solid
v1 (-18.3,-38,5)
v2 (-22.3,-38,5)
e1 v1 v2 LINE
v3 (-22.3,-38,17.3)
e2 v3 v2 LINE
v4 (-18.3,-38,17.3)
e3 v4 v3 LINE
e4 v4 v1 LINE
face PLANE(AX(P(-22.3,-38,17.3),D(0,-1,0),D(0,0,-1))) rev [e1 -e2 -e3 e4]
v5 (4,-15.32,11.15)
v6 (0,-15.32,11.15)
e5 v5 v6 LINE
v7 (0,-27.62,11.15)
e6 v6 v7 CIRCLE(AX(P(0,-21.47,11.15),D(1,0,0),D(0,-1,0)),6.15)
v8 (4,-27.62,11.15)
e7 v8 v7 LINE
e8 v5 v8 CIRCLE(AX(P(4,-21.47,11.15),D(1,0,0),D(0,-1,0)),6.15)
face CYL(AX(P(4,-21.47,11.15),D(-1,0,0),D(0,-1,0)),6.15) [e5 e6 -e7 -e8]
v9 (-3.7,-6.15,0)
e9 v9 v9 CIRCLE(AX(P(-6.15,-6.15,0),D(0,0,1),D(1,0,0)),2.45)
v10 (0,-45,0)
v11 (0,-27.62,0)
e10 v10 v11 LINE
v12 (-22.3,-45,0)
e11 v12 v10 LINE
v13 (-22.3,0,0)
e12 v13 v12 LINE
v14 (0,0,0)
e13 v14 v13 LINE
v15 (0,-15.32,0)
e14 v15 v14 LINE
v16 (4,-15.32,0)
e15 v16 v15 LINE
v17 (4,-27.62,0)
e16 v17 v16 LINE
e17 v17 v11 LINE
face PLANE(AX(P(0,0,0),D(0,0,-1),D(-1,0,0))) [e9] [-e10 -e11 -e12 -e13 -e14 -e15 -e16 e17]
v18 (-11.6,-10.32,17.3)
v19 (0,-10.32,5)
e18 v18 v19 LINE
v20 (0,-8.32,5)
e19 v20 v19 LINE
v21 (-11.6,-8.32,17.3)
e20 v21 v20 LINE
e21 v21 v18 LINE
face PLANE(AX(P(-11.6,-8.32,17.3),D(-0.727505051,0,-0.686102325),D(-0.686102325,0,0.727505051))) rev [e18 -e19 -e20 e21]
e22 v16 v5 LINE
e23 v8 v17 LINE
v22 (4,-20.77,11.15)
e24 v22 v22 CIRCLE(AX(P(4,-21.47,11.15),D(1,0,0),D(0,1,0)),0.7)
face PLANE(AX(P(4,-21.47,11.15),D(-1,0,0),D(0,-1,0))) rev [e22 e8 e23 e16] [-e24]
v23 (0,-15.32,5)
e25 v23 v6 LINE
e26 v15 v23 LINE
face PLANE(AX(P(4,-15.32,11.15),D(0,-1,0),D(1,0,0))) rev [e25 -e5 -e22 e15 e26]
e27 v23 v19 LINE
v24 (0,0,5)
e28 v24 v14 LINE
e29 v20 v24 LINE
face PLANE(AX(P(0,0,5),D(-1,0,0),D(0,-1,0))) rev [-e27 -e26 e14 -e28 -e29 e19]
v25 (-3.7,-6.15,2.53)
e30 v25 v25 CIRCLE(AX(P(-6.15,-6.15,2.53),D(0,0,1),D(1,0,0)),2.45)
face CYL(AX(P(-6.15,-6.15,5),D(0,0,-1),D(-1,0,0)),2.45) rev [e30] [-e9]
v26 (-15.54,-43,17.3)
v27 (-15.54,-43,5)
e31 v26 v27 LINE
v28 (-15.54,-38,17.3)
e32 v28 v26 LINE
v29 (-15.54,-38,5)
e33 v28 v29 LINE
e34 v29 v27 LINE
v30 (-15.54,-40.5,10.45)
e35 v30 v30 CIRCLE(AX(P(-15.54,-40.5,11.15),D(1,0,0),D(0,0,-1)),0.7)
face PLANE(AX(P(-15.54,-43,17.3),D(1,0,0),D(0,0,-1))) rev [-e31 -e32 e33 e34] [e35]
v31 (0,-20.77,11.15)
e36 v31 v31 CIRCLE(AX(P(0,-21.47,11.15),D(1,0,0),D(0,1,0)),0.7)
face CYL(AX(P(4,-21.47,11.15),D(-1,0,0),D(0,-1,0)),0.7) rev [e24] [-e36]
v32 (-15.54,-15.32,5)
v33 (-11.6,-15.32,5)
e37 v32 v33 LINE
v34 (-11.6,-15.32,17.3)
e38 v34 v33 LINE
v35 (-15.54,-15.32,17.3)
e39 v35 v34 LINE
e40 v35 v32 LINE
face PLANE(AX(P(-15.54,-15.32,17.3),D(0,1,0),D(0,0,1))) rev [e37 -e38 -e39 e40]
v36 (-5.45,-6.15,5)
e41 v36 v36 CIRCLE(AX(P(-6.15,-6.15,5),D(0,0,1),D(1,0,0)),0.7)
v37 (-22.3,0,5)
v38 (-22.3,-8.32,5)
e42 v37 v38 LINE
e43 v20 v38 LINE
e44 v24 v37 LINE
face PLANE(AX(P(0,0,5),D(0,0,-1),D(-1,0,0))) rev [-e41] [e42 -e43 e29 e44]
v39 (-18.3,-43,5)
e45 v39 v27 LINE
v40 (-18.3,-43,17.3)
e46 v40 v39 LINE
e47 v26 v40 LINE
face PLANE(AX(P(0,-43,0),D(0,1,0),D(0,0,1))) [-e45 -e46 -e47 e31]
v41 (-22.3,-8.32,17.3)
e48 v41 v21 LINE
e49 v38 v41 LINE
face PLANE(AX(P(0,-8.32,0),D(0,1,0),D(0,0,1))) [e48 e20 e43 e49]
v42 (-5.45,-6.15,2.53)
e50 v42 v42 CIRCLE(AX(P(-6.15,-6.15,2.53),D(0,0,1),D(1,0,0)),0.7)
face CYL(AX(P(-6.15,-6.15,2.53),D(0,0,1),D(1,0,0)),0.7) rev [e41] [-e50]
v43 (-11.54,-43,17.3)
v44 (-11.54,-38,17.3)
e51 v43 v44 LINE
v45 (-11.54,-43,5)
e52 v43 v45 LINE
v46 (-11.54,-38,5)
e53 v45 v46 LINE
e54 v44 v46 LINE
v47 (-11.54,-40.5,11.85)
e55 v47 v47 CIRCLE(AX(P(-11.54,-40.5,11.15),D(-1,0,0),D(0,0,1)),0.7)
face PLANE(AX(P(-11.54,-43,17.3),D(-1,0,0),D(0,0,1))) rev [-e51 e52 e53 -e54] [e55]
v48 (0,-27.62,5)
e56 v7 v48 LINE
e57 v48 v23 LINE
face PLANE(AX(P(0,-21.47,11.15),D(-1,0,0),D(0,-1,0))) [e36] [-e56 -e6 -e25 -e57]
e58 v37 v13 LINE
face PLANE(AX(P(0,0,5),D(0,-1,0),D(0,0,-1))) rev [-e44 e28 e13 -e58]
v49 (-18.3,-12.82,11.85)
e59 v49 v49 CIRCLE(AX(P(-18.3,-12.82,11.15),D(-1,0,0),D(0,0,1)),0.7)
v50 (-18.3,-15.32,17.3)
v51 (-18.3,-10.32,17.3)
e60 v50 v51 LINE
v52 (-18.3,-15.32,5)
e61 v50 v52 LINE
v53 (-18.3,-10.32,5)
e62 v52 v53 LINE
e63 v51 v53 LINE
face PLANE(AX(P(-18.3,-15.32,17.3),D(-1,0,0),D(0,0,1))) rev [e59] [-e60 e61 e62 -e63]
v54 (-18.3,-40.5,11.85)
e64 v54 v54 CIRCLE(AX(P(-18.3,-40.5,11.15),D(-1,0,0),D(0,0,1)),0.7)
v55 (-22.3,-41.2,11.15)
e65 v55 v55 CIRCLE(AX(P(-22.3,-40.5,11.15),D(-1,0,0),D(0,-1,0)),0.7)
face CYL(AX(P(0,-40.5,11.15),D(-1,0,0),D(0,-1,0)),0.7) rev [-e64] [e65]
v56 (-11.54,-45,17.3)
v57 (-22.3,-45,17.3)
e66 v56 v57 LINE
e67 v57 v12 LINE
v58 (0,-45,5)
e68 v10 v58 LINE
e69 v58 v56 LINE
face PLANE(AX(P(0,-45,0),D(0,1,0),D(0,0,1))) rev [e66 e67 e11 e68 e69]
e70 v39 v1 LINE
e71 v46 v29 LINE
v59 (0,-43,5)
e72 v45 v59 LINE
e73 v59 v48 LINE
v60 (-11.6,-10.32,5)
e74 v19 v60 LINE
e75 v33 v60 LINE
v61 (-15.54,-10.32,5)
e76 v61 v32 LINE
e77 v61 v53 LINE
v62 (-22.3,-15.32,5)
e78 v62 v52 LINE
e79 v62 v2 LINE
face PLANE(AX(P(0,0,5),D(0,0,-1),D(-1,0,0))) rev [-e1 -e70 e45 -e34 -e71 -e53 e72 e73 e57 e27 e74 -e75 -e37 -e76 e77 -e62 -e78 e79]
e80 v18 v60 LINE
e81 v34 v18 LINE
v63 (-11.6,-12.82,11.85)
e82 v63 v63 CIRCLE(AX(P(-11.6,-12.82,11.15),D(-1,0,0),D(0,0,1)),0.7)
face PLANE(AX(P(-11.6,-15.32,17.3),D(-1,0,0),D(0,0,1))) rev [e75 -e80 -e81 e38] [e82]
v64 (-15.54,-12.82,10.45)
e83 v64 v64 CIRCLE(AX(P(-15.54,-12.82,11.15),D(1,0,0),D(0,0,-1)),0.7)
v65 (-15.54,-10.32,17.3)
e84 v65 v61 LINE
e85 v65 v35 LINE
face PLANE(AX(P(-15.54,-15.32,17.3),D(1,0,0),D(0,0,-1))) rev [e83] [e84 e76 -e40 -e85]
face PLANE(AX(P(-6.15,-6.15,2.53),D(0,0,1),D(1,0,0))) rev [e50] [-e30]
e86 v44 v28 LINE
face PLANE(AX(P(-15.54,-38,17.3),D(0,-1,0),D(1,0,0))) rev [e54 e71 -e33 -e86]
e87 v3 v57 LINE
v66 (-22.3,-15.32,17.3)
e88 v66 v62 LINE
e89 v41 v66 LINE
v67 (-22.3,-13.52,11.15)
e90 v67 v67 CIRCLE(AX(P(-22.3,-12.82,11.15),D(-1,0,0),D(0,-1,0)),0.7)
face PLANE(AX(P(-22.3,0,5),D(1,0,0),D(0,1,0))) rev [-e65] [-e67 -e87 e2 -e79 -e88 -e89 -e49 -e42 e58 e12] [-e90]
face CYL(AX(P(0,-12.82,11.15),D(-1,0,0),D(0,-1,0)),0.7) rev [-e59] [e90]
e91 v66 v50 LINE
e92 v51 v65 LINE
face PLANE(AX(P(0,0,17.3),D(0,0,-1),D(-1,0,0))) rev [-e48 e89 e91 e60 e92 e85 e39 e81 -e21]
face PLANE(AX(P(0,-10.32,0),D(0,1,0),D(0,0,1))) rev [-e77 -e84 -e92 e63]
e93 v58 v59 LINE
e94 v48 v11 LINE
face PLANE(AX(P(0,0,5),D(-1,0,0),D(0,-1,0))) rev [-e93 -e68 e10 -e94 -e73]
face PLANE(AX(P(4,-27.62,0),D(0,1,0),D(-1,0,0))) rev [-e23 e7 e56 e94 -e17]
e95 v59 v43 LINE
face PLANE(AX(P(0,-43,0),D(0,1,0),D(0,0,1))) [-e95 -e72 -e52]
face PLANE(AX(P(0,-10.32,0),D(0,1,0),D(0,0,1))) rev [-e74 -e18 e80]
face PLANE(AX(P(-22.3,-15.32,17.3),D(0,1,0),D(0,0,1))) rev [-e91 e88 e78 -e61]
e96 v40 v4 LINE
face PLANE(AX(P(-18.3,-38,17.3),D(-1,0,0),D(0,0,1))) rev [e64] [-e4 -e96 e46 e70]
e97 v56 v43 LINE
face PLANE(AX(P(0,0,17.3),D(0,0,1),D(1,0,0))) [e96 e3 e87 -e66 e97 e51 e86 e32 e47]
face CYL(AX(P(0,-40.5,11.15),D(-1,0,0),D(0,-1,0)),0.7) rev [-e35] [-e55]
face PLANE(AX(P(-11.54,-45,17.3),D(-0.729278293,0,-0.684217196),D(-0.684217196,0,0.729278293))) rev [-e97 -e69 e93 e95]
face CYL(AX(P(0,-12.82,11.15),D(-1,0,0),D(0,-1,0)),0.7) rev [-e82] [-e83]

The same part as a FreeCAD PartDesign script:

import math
import FreeCAD as App
import Part
import Sketcher
Q = App.Units.Quantity


def add_polygon(sketch, points):
    """Adds a closed chain of lines whose ends are joined by coincident constraints."""
    first, n = sketch.GeometryCount, len(points)
    for a, b in zip(points, points[1:] + points[:1]):
        sketch.addGeometry(Part.LineSegment(App.Vector(*a, 0), App.Vector(*b, 0)), False)
    for i in range(n):
        sketch.addConstraint(Sketcher.Constraint("Coincident", first + i, 2, first + (i + 1) % n, 1))

doc = App.newDocument("Part")
params = doc.addObject("Spreadsheet::Sheet", "Params")
for row, (alias, value) in enumerate([
    ("sketch1_diameter", "4.9 mm"),
    ("sketch1_height", "43 mm"),
    ("sketch1_width", "22.3 mm"),
    ("pad1_length", "5 mm"),
    ("sketch2_diameter", "4.9 mm"),
    ("sketch2_diameter2", "1.4 mm"),
    ("pad2_length", "2.47 mm"),
    ("sketch3_width", "4 mm"),
    ("sketch3_height", "5 mm"),
    ("sketch3_width2", "3.94 mm"),
    ("pad3_length", "12.3 mm"),
    ("sketch4_diameter", "1.4 mm"),
    ("sketch5_height", "5 mm"),
    ("sketch5_width", "22.3 mm"),
    ("sketch5_height2", "17.3 mm"),
    ("sketch5_width2", "10.76 mm"),
    ("pad4_length", "2 mm"),
    ("sketch6_width", "10.7 mm"),
    ("sketch6_width2", "22.3 mm"),
    ("sketch6_height", "12.3 mm"),
    ("pad5_length", "2 mm"),
    ("sketch7_diameter", "1.4 mm"),
    ("sketch7_radius", "6.15 mm"),
    ("sketch7_height", "11.15 mm"),
    ("pad6_length", "4 mm"),
], start=1):
    params.set(f"A{row}", alias)
    params.set(f"B{row}", "=" + value)
    params.setAlias(f"B{row}", alias)

body = doc.addObject("PartDesign::Body", "Body")

sketch1 = body.newObject("Sketcher::SketchObject", "Sketch")
sketch1.AttachmentSupport = (doc.getObject("XY_Plane"), [""])
sketch1.MapMode = "FlatFace"
add_polygon(sketch1, [(-22.3, 0), (-22.3, -43), (0, -43), (0, 0)])
sketch1.addGeometry(Part.Circle(App.Vector(-6.15, -6.15, 0), App.Vector(0, 0, 1), 2.45), False)
sketch1.addConstraint([
    Sketcher.Constraint("Vertical", 0),
    Sketcher.Constraint("Horizontal", 1),
    Sketcher.Constraint("Vertical", 2),
    Sketcher.Constraint("Horizontal", 3),
    Sketcher.Constraint("Coincident", 2, 2, -1, 1),
    Sketcher.Constraint("Diameter", 4, Q("4.9 mm")),
    Sketcher.Constraint("DistanceY", 0, 2, 0, 1, Q("43 mm")),
    Sketcher.Constraint("DistanceX", 1, 1, 1, 2, Q("22.3 mm")),
    Sketcher.Constraint("DistanceX", 4, 3, -1, 1, Q("6.15 mm")),
    Sketcher.Constraint("DistanceY", 4, 3, -1, 1, Q("6.15 mm")),
])
sketch1.setExpression("Constraints[9]", "Params.sketch1_diameter")
sketch1.setExpression("Constraints[10]", "Params.sketch1_height")
sketch1.setExpression("Constraints[11]", "Params.sketch1_width")
pad1 = body.newObject("PartDesign::Pad", "Pad")
pad1.Profile = sketch1
pad1.setExpression("Length", "Params.pad1_length")

sketch2 = body.newObject("Sketcher::SketchObject", "Sketch001")
sketch2.AttachmentSupport = (doc.getObject("XY_Plane"), [""])
sketch2.MapMode = "FlatFace"
sketch2.AttachmentOffset = App.Placement(App.Vector(0, 0, 2.53), App.Rotation())
sketch2.addGeometry([
    Part.Circle(App.Vector(-6.15, -6.15, 0), App.Vector(0, 0, 1), 2.45),
    Part.Circle(App.Vector(-6.15, -6.15, 0), App.Vector(0, 0, 1), 0.7),
], False)
sketch2.addConstraint([
    Sketcher.Constraint("Coincident", 1, 3, 0, 3),
    Sketcher.Constraint("Diameter", 0, Q("4.9 mm")),
    Sketcher.Constraint("Diameter", 1, Q("1.4 mm")),
    Sketcher.Constraint("DistanceX", 0, 3, -1, 1, Q("6.15 mm")),
    Sketcher.Constraint("DistanceY", 0, 3, -1, 1, Q("6.15 mm")),
])
sketch2.setExpression("Constraints[1]", "Params.sketch2_diameter")
sketch2.setExpression("Constraints[2]", "Params.sketch2_diameter2")
pad2 = body.newObject("PartDesign::Pad", "Pad001")
pad2.Profile = sketch2
pad2.setExpression("Length", "Params.pad2_length")

sketch3 = body.newObject("Sketcher::SketchObject", "Sketch002")
sketch3.AttachmentSupport = (doc.getObject("XY_Plane"), [""])
sketch3.MapMode = "FlatFace"
sketch3.AttachmentOffset = App.Placement(App.Vector(0, 0, 5), App.Rotation())
add_polygon(sketch3, [(-22.3, -38), (-22.3, -43), (-18.3, -43), (-18.3, -38)])
add_polygon(sketch3, [(-15.54, -38), (-15.54, -43), (-11.54, -43), (-11.54, -38)])
add_polygon(sketch3, [(-22.3, -10.32), (-22.3, -15.32), (-18.3, -15.32), (-18.3, -10.32)])
add_polygon(sketch3, [(-15.54, -10.32), (-15.54, -15.32), (-11.6, -15.32), (-11.6, -10.32)])
sketch3.addConstraint([
    Sketcher.Constraint("Vertical", 0),
    Sketcher.Constraint("Horizontal", 1),
    Sketcher.Constraint("Vertical", 2),
    Sketcher.Constraint("Horizontal", 3),
    Sketcher.Constraint("Vertical", 4),
    Sketcher.Constraint("Horizontal", 5),
    Sketcher.Constraint("Vertical", 6),
    Sketcher.Constraint("Horizontal", 7),
    Sketcher.Constraint("Vertical", 8),
    Sketcher.Constraint("Horizontal", 9),
    Sketcher.Constraint("Vertical", 10),
    Sketcher.Constraint("Horizontal", 11),
    Sketcher.Constraint("Vertical", 12),
    Sketcher.Constraint("Horizontal", 13),
    Sketcher.Constraint("Vertical", 14),
    Sketcher.Constraint("Horizontal", 15),
    Sketcher.Constraint("Horizontal", 1, 2, 4, 2),
    Sketcher.Constraint("Horizontal", 3, 2, 6, 2),
    Sketcher.Constraint("Horizontal", 9, 2, 12, 2),
    Sketcher.Constraint("Horizontal", 11, 2, 14, 2),
    Sketcher.Constraint("Vertical", 3, 2, 8, 2),
    Sketcher.Constraint("Vertical", 2, 2, 9, 2),
    Sketcher.Constraint("Vertical", 7, 2, 12, 2),
    Sketcher.Constraint("Equal", 3, 5),
    Sketcher.Constraint("Equal", 6, 8),
    Sketcher.Constraint("DistanceX", 1, 1, 1, 2, Q("4 mm")),
    Sketcher.Constraint("DistanceY", 0, 2, 0, 1, Q("5 mm")),
    Sketcher.Constraint("DistanceY", 0, 2, -1, 1, Q("43 mm")),
    Sketcher.Constraint("DistanceX", 13, 1, 13, 2, Q("3.94 mm")),
    Sketcher.Constraint("DistanceX", 0, 2, -1, 1, Q("22.3 mm")),
    Sketcher.Constraint("DistanceX", 13, 2, -1, 1, Q("11.6 mm")),
    Sketcher.Constraint("DistanceY", 8, 2, -1, 1, Q("15.32 mm")),
])
sketch3.setExpression("Constraints[41]", "Params.sketch3_width")
sketch3.setExpression("Constraints[42]", "Params.sketch3_height")
sketch3.setExpression("Constraints[44]", "Params.sketch3_width2")
pad3 = body.newObject("PartDesign::Pad", "Pad002")
pad3.Profile = sketch3
pad3.setExpression("Length", "Params.pad3_length")

sketch4 = body.newObject("Sketcher::SketchObject", "Sketch003")
sketch4.AttachmentSupport = (doc.getObject("YZ_Plane"), [""])
sketch4.MapMode = "FlatFace"
sketch4.AttachmentOffset = App.Placement(App.Vector(0, 0, -22.3), App.Rotation())
sketch4.addGeometry([
    Part.Circle(App.Vector(-12.82, 11.15, 0), App.Vector(0, 0, 1), 0.7),
    Part.Circle(App.Vector(-40.5, 11.15, 0), App.Vector(0, 0, 1), 0.7),
], False)
sketch4.addConstraint([
    Sketcher.Constraint("Equal", 0, 1),
    Sketcher.Constraint("Horizontal", 0, 3, 1, 3),
    Sketcher.Constraint("Diameter", 0, Q("1.4 mm")),
    Sketcher.Constraint("DistanceX", 1, 3, -1, 1, Q("40.5 mm")),
    Sketcher.Constraint("DistanceX", 0, 3, -1, 1, Q("12.82 mm")),
    Sketcher.Constraint("DistanceY", -1, 1, 0, 3, Q("11.15 mm")),
])
sketch4.setExpression("Constraints[2]", "Params.sketch4_diameter")
pocket1 = body.newObject("PartDesign::Pocket", "Pocket")
pocket1.Profile = sketch4
pocket1.Type = "ThroughAll"
pocket1.Reversed = True

sketch5 = body.newObject("Sketcher::SketchObject", "Sketch004")
sketch5.AttachmentSupport = (doc.getObject("XZ_Plane"), [""])
sketch5.MapMode = "FlatFace"
sketch5.AttachmentOffset = App.Placement(App.Vector(0, 0, 43), App.Rotation())
add_polygon(sketch5, [(-11.54, 17.3), (-22.3, 17.3), (-22.3, 0), (0, 0), (0, 5)])
sketch5.addConstraint([
    Sketcher.Constraint("Horizontal", 0),
    Sketcher.Constraint("Vertical", 1),
    Sketcher.Constraint("Horizontal", 2),
    Sketcher.Constraint("Vertical", 3),
    Sketcher.Constraint("Coincident", 2, 2, -1, 1),
    Sketcher.Constraint("DistanceY", 3, 1, 3, 2, Q("5 mm")),
    Sketcher.Constraint("DistanceX", 2, 1, 2, 2, Q("22.3 mm")),
    Sketcher.Constraint("DistanceY", 1, 2, 1, 1, Q("17.3 mm")),
    Sketcher.Constraint("DistanceX", 0, 2, 0, 1, Q("10.76 mm")),
])
sketch5.setExpression("Constraints[10]", "Params.sketch5_height")
sketch5.setExpression("Constraints[11]", "Params.sketch5_width")
sketch5.setExpression("Constraints[12]", "Params.sketch5_height2")
sketch5.setExpression("Constraints[13]", "Params.sketch5_width2")
pad4 = body.newObject("PartDesign::Pad", "Pad003")
pad4.Profile = sketch5
pad4.setExpression("Length", "Params.pad4_length")

sketch6 = body.newObject("Sketcher::SketchObject", "Sketch005")
sketch6.AttachmentSupport = (doc.getObject("XZ_Plane"), [""])
sketch6.MapMode = "FlatFace"
sketch6.AttachmentOffset = App.Placement(App.Vector(0, 0, 10.32), App.Rotation())
add_polygon(sketch6, [(-22.3, 5), (-22.3, 17.3), (-11.6, 17.3), (0, 5)])
sketch6.addConstraint([
    Sketcher.Constraint("Vertical", 0),
    Sketcher.Constraint("Horizontal", 1),
    Sketcher.Constraint("Horizontal", 3),
    Sketcher.Constraint("PointOnObject", 2, 2, -2),
    Sketcher.Constraint("DistanceX", 1, 1, 1, 2, Q("10.7 mm")),
    Sketcher.Constraint("DistanceX", 3, 2, 3, 1, Q("22.3 mm")),
    Sketcher.Constraint("DistanceY", 0, 1, 0, 2, Q("12.3 mm")),
    Sketcher.Constraint("DistanceY", -1, 1, 2, 2, Q("5 mm")),
])
sketch6.setExpression("Constraints[8]", "Params.sketch6_width")
sketch6.setExpression("Constraints[9]", "Params.sketch6_width2")
sketch6.setExpression("Constraints[10]", "Params.sketch6_height")
pad5 = body.newObject("PartDesign::Pad", "Pad004")
pad5.Profile = sketch6
pad5.setExpression("Length", "Params.pad5_length")
pad5.Reversed = True

sketch7 = body.newObject("Sketcher::SketchObject", "Sketch006")
sketch7.AttachmentSupport = (doc.getObject("YZ_Plane"), [""])
sketch7.MapMode = "FlatFace"
sketch7.addGeometry([
    Part.LineSegment(App.Vector(-15.32, 0, 0), App.Vector(-15.32, 11.15, 0)),
    Part.ArcOfCircle(Part.Circle(App.Vector(-21.47, 11.15, 0), App.Vector(0, 0, 1), 6.15), math.radians(0), math.radians(180)),
    Part.LineSegment(App.Vector(-27.62, 11.15, 0), App.Vector(-27.62, 0, 0)),
    Part.LineSegment(App.Vector(-27.62, 0, 0), App.Vector(-15.32, 0, 0)),
    Part.Circle(App.Vector(-21.47, 11.15, 0), App.Vector(0, 0, 1), 0.7),
], False)
sketch7.addConstraint([
    Sketcher.Constraint("Tangent", 0, 2, 1, 1),
    Sketcher.Constraint("Tangent", 1, 2, 2, 1),
    Sketcher.Constraint("Coincident", 2, 2, 3, 1),
    Sketcher.Constraint("Coincident", 3, 2, 0, 1),
    Sketcher.Constraint("Vertical", 0),
    Sketcher.Constraint("Vertical", 2),
    Sketcher.Constraint("Horizontal", 3),
    Sketcher.Constraint("Coincident", 4, 3, 1, 3),
    Sketcher.Constraint("PointOnObject", 2, 2, -1),
    Sketcher.Constraint("Diameter", 4, Q("1.4 mm")),
    Sketcher.Constraint("Radius", 1, Q("6.15 mm")),
    Sketcher.Constraint("DistanceY", 0, 1, 0, 2, Q("11.15 mm")),
    Sketcher.Constraint("DistanceX", 1, 3, -1, 1, Q("21.47 mm")),
])
sketch7.setExpression("Constraints[9]", "Params.sketch7_diameter")
sketch7.setExpression("Constraints[10]", "Params.sketch7_radius")
sketch7.setExpression("Constraints[11]", "Params.sketch7_height")
pad6 = body.newObject("PartDesign::Pad", "Pad005")
pad6.Profile = sketch7
pad6.setExpression("Length", "Params.pad6_length")

doc.recompute()
